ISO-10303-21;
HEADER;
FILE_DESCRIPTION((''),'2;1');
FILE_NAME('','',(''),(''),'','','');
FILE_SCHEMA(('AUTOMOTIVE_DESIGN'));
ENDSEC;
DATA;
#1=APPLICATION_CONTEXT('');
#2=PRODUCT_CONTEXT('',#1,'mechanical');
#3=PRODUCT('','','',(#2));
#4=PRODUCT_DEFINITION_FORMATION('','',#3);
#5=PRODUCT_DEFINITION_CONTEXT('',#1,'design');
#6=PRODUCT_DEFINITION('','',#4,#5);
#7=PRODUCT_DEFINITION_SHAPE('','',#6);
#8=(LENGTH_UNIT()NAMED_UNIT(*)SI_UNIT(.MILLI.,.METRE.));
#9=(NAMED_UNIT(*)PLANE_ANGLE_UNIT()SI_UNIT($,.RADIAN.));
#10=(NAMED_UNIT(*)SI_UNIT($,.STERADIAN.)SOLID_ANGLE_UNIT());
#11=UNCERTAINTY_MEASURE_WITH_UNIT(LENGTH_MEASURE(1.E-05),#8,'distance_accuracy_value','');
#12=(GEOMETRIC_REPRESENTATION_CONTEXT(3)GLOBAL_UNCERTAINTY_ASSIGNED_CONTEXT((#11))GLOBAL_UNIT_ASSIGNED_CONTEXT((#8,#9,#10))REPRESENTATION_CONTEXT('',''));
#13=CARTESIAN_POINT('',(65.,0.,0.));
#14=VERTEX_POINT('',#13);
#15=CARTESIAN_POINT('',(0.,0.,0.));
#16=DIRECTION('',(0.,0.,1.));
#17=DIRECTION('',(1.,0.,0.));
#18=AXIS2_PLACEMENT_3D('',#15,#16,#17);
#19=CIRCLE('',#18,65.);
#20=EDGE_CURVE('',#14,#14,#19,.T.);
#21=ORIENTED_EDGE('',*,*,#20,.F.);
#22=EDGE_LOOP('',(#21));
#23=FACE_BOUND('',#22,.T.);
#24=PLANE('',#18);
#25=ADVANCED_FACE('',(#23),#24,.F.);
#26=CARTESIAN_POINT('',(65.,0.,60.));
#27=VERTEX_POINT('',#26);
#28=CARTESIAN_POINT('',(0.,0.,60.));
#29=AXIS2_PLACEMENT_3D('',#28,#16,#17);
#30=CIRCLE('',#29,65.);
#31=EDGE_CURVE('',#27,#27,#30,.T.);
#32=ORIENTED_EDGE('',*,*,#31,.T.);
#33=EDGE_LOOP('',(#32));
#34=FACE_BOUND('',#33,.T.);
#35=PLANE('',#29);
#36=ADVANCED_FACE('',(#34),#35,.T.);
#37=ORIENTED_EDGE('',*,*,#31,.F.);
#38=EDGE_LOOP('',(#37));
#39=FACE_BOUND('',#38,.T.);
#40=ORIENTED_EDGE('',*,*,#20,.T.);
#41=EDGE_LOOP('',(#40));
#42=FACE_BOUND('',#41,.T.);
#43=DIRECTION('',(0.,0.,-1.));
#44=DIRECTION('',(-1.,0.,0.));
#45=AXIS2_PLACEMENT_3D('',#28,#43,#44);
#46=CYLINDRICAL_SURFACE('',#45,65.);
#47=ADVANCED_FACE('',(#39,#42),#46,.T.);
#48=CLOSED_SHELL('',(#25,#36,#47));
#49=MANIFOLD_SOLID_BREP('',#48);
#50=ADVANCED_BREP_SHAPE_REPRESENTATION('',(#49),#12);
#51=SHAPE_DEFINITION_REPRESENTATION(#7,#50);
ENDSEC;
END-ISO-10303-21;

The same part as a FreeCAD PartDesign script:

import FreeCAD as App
import Part
import Sketcher
Q = App.Units.Quantity

doc = App.newDocument("Part")
body = doc.addObject("PartDesign::Body", "Body")

sketch1 = doc.addObject("Sketcher::SketchObject", "Sketch")
body.addObject(sketch1)
sketch1.AttachmentSupport = (doc.XY_Plane, [""])
sketch1.MapMode = "FlatFace"
sketch1.addGeometry(Part.Circle(App.Vector(0, 0, 0), App.Vector(0, 0, 1), 65), False)
sketch1.addConstraint([
    Sketcher.Constraint("Coincident", 0, 3, -1, 1),
    Sketcher.Constraint("Diameter", 0, Q("130 mm")),
])
pad1 = doc.addObject("PartDesign::Pad", "Pad")
body.addObject(pad1)
pad1.Profile = sketch1
pad1.Length = 60

doc.recompute()
